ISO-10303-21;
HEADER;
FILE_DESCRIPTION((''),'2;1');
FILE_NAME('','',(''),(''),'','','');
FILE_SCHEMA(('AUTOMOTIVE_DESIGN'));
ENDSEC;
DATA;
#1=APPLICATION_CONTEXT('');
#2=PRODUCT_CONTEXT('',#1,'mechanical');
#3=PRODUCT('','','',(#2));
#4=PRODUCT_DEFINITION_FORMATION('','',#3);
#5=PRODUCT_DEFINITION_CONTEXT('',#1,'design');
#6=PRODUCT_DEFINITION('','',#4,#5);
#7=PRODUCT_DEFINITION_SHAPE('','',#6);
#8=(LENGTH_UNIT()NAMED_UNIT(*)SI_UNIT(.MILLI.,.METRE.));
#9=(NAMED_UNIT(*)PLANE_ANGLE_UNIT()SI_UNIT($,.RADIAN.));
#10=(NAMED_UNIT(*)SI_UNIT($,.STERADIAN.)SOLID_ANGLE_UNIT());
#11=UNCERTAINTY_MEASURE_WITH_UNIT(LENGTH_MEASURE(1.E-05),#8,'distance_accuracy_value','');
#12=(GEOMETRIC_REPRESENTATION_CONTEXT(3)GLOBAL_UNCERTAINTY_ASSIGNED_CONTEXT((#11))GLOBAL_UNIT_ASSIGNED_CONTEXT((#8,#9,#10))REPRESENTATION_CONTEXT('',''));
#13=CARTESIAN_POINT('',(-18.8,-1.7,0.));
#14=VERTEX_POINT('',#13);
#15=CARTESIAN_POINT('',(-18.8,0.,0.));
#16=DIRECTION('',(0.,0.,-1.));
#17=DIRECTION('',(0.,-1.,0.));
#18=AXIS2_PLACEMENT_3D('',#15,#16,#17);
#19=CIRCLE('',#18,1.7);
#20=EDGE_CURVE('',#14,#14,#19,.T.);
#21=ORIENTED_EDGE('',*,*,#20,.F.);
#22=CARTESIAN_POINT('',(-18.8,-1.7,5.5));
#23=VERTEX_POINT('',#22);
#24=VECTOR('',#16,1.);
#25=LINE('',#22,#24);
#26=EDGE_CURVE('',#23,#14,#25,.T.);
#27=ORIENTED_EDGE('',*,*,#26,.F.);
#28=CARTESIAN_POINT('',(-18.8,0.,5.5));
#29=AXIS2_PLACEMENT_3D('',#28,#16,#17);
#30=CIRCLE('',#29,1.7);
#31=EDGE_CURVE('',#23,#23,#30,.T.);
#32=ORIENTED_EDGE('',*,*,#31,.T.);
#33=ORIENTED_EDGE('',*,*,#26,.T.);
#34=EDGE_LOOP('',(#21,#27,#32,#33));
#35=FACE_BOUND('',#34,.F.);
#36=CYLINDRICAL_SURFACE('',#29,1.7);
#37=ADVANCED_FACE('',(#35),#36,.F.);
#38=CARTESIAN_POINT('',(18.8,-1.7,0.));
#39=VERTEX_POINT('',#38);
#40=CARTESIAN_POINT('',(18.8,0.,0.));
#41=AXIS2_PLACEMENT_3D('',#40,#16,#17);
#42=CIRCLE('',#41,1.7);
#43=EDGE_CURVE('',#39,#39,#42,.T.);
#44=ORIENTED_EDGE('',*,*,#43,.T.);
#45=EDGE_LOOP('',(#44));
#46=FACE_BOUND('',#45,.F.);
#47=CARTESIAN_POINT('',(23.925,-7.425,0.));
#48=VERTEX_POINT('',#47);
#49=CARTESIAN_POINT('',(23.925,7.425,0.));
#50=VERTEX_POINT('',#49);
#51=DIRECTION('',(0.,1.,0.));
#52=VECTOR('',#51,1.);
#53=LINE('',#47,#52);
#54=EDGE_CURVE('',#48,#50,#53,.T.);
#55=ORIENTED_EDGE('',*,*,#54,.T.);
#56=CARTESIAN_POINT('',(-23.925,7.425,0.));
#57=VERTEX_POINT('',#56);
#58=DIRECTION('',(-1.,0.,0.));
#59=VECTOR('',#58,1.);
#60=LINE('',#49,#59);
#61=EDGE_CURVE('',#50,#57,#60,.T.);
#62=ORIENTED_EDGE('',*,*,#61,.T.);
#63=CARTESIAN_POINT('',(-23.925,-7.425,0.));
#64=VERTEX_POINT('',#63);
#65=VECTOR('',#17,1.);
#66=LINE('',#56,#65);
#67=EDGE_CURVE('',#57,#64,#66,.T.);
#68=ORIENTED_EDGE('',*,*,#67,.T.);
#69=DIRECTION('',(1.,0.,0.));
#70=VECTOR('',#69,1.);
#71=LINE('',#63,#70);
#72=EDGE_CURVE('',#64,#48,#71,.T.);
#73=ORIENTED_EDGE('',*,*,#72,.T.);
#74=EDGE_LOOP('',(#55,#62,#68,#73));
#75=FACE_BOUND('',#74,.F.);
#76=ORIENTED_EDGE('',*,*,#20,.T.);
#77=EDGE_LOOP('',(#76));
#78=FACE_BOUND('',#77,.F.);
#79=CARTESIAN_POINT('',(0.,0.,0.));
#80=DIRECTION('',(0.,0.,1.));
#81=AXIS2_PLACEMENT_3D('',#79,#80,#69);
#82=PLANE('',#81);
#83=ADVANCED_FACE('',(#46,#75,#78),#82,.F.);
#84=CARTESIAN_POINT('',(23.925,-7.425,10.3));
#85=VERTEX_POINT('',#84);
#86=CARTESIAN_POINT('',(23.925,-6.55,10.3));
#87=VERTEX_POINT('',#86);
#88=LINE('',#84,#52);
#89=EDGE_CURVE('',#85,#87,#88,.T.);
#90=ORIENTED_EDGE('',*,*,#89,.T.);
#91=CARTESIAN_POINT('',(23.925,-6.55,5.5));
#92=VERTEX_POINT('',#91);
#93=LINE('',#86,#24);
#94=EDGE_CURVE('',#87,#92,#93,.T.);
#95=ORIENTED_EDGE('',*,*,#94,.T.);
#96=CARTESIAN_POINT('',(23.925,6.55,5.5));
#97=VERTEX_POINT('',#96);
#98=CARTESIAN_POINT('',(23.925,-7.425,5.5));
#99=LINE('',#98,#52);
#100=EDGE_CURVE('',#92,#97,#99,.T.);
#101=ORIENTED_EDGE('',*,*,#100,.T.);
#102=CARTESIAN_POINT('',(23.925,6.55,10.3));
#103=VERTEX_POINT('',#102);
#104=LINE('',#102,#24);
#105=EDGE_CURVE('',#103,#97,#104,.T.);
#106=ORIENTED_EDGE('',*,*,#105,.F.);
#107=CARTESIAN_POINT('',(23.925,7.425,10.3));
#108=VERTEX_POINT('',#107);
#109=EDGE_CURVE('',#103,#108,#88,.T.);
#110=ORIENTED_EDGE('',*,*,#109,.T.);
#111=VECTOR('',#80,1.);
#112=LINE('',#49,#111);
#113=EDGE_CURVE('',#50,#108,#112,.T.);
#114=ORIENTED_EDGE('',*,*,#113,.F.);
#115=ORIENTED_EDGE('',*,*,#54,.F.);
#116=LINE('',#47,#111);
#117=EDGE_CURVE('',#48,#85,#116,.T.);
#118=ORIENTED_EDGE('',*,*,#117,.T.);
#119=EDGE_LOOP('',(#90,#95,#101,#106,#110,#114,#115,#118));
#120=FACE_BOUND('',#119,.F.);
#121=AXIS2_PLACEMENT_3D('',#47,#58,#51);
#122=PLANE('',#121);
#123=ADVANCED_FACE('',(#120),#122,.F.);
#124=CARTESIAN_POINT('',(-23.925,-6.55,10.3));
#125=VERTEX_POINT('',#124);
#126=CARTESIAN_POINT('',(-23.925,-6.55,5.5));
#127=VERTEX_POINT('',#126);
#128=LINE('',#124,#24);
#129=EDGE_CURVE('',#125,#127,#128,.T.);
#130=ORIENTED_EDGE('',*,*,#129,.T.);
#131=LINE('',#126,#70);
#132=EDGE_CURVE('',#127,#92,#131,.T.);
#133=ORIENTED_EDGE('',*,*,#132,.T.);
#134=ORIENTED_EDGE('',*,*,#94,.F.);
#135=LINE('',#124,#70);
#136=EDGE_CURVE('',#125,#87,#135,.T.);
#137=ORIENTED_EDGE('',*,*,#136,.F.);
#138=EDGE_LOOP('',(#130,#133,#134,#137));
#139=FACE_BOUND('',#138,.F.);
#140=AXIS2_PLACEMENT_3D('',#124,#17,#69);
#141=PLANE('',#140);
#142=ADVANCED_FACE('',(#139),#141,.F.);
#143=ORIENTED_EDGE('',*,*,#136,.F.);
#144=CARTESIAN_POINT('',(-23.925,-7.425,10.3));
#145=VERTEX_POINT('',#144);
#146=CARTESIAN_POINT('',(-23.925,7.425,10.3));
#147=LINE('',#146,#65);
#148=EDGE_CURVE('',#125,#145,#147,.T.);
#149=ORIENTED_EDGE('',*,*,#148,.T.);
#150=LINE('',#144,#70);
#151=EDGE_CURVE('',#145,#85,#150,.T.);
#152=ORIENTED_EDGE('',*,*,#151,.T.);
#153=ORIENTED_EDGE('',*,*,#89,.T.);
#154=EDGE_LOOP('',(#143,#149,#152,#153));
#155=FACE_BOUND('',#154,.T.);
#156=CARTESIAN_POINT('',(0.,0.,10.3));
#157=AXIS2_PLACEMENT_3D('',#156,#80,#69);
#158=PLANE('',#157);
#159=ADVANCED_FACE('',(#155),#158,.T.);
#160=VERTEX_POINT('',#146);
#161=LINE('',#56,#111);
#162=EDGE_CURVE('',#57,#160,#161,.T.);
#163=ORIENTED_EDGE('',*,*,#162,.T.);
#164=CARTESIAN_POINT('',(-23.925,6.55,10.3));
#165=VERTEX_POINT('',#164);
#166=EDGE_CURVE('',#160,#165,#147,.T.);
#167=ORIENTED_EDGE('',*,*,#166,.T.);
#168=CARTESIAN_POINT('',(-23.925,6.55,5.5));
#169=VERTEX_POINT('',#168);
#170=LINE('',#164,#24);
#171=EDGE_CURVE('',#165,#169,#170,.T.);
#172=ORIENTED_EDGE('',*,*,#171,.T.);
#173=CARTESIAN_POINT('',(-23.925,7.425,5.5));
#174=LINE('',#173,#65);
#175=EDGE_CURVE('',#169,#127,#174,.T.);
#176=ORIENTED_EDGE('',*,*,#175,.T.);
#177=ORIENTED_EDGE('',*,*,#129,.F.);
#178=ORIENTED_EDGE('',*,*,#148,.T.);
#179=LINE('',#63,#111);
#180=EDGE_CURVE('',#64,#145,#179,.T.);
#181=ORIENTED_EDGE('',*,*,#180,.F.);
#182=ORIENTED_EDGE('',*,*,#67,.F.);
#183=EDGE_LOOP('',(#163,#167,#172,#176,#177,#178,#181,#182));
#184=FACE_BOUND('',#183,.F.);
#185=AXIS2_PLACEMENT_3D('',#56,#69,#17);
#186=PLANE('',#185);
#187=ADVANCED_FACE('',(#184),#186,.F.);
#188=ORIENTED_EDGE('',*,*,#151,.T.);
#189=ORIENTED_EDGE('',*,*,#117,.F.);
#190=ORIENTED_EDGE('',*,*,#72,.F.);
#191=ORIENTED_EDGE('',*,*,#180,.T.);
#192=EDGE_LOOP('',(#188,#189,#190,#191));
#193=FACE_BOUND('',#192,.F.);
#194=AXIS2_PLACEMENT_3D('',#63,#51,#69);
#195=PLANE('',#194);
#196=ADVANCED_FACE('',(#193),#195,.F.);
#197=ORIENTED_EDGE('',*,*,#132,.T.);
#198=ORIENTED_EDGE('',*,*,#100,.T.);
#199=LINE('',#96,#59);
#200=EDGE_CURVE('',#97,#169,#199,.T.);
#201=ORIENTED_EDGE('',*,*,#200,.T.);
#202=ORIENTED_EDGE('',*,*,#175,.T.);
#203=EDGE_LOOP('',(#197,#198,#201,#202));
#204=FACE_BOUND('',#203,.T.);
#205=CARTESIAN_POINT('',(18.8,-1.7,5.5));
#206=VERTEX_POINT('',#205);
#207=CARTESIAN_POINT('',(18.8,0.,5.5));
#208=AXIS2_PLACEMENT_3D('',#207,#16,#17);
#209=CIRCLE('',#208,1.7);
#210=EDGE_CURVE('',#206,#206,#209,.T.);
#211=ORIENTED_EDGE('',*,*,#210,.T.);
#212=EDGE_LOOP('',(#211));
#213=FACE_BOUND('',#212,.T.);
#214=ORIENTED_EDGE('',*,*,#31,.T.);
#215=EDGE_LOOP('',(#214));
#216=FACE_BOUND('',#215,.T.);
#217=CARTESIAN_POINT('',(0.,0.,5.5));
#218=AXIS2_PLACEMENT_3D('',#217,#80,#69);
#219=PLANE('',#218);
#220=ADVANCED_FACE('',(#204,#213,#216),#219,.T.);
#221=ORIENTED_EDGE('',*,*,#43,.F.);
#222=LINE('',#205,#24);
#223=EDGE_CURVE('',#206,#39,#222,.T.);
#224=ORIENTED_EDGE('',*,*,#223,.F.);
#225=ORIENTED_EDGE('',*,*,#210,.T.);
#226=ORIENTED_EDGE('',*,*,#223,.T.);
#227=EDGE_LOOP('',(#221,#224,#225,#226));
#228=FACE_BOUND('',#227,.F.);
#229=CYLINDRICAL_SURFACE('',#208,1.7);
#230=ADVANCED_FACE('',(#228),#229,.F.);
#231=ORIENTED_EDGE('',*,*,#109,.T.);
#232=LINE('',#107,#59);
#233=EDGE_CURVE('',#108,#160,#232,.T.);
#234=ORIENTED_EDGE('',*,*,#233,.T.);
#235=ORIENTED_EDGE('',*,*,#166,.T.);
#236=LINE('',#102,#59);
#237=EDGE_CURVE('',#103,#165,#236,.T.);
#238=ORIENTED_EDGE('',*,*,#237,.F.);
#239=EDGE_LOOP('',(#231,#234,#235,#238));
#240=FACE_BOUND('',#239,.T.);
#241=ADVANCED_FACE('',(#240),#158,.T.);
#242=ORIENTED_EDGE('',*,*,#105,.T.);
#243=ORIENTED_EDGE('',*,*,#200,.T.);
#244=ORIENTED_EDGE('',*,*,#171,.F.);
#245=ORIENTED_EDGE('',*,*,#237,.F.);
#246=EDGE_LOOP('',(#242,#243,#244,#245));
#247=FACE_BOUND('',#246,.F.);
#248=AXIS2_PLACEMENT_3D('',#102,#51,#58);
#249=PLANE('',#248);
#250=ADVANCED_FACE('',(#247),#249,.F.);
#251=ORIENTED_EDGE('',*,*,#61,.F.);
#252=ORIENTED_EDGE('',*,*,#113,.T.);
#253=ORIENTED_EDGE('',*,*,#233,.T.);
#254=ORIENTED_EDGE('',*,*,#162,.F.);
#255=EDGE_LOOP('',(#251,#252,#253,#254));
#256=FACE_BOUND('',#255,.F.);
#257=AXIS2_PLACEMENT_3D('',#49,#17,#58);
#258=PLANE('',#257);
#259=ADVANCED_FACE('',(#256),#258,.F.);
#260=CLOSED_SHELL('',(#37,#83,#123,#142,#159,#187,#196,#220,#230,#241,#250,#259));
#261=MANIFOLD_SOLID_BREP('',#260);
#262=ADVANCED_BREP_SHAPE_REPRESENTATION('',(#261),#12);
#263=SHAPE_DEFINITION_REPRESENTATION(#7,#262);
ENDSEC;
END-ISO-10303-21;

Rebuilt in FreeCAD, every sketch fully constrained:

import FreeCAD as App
import Part
import Sketcher
from FreeCAD import Vector
Q = App.Units.Quantity

doc = App.newDocument("Part")
body = doc.addObject("PartDesign::Body", "Body")

# Sketch on XY plane
sketch1 = body.newObject("Sketcher::SketchObject", "Sketch")
sketch1.AttachmentSupport = (doc.getObject("XY_Plane"), [""])
sketch1.MapMode = "FlatFace"
sketch1.addGeometry([
    Part.LineSegment(Vector(-23.925, 7.425, 0), Vector(-23.925, -7.425, 0)),
    Part.LineSegment(Vector(-23.925, -7.425, 0), Vector(23.925, -7.425, 0)),
    Part.LineSegment(Vector(23.925, -7.425, 0), Vector(23.925, 7.425, 0)),
    Part.LineSegment(Vector(23.925, 7.425, 0), Vector(-23.925, 7.425, 0)),
], False)
sketch1.addConstraint([
    Sketcher.Constraint("Coincident", 0, 2, 1, 1),
    Sketcher.Constraint("Coincident", 1, 2, 2, 1),
    Sketcher.Constraint("Coincident", 2, 2, 3, 1),
    Sketcher.Constraint("Coincident", 3, 2, 0, 1),
    Sketcher.Constraint("Vertical", 0),
    Sketcher.Constraint("Horizontal", 1),
    Sketcher.Constraint("Vertical", 2),
    Sketcher.Constraint("Horizontal", 3),
    Sketcher.Constraint("Symmetric", 0, 2, 2, 2, -1, 1),
    Sketcher.Constraint("DistanceX", 1, 1, 1, 2, Q("47.85 mm")),
    Sketcher.Constraint("DistanceY", 0, 2, 0, 1, Q("14.85 mm")),
])
pad1 = body.newObject("PartDesign::Pad", "Pad")
pad1.Profile = sketch1
pad1.Length = 10.3

# Sketch on XY plane
sketch2 = body.newObject("Sketcher::SketchObject", "Sketch001")
sketch2.AttachmentSupport = (doc.getObject("XY_Plane"), [""])
sketch2.MapMode = "FlatFace"
sketch2.AttachmentOffset = App.Placement(Vector(0, 0, 10.3), App.Rotation())
sketch2.addGeometry([
    Part.LineSegment(Vector(-23.925, -6.55, 0), Vector(23.925, -6.55, 0)),
    Part.LineSegment(Vector(23.925, -6.55, 0), Vector(23.925, 6.55, 0)),
    Part.LineSegment(Vector(23.925, 6.55, 0), Vector(-23.925, 6.55, 0)),
    Part.LineSegment(Vector(-23.925, 6.55, 0), Vector(-23.925, -6.55, 0)),
], False)
sketch2.addConstraint([
    Sketcher.Constraint("Coincident", 0, 2, 1, 1),
    Sketcher.Constraint("Coincident", 1, 2, 2, 1),
    Sketcher.Constraint("Coincident", 2, 2, 3, 1),
    Sketcher.Constraint("Coincident", 3, 2, 0, 1),
    Sketcher.Constraint("Horizontal", 0),
    Sketcher.Constraint("Vertical", 1),
    Sketcher.Constraint("Horizontal", 2),
    Sketcher.Constraint("Vertical", 3),
    Sketcher.Constraint("Symmetric", 0, 2, 2, 2, -1, 1),
    Sketcher.Constraint("DistanceY", 1, 1, 1, 2, Q("13.1 mm")),
    Sketcher.Constraint("DistanceX", 0, 1, 0, 2, Q("47.85 mm")),
])
pocket1 = body.newObject("PartDesign::Pocket", "Pocket")
pocket1.Profile = sketch2
pocket1.Length = 4.8

# Sketch on XY plane
sketch3 = body.newObject("Sketcher::SketchObject", "Sketch002")
sketch3.AttachmentSupport = (doc.getObject("XY_Plane"), [""])
sketch3.MapMode = "FlatFace"
sketch3.AttachmentOffset = App.Placement(Vector(0, 0, 5.5), App.Rotation())
sketch3.addGeometry([
    Part.Circle(Vector(-18.8, 0, 0), Vector(0, 0, 1), 1.7),
    Part.Circle(Vector(18.8, 0, 0), Vector(0, 0, 1), 1.7),
], False)
sketch3.addConstraint([
    Sketcher.Constraint("Equal", 0, 1),
    Sketcher.Constraint("Symmetric", 0, 3, 1, 3, -1, 1),
    Sketcher.Constraint("PointOnObject", 0, 3, -1),
    Sketcher.Constraint("Diameter", 0, Q("3.4 mm")),
    Sketcher.Constraint("DistanceX", 0, 3, -1, 1, Q("18.8 mm")),
])
doc.recompute()
hole = body.newObject("PartDesign::Hole", "Hole")
hole.Profile = sketch3
hole.ThreadType = "None"
hole.Diameter = 3.4
hole.DepthType = "ThroughAll"

doc.recompute()
